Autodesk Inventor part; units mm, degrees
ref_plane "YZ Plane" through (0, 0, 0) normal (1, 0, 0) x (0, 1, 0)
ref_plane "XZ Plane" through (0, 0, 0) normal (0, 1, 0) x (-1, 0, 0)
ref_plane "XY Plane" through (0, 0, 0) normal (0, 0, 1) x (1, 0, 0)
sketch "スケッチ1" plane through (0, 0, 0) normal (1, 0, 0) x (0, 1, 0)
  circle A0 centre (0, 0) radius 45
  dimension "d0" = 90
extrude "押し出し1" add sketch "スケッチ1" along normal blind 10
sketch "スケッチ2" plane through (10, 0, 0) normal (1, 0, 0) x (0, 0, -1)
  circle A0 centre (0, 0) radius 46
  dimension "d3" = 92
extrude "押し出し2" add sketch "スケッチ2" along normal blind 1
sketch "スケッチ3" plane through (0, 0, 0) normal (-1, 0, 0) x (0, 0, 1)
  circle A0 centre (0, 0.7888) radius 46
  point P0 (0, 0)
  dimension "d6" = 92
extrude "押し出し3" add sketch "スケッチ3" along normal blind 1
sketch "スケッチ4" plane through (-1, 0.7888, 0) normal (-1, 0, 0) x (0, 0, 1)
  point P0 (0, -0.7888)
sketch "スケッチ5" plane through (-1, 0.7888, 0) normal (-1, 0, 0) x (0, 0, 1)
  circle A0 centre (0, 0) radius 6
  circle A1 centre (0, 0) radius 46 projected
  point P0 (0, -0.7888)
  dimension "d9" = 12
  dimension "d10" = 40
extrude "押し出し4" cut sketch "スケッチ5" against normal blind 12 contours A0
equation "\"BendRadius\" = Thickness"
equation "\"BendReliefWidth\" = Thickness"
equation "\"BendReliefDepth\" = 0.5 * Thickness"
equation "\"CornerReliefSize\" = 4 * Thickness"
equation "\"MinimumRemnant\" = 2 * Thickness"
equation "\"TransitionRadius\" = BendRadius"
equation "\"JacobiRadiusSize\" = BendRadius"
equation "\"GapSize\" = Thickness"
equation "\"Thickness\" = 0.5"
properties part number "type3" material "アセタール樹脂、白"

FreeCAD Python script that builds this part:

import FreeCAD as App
import Part
import Sketcher

doc = App.newDocument("Part")
body = doc.addObject("PartDesign::Body", "Body")

# Sketch on YZ plane
sketch1 = body.newObject("Sketcher::SketchObject", "Sketch")
sketch1.AttachmentSupport = (doc.getObject("YZ_Plane"), [""])
sketch1.MapMode = "FlatFace"
sketch1.addGeometry(Part.Circle(App.Vector(0, 0, 0), App.Vector(0, 0, 1), 45), False)
sketch1.addConstraint([
    Sketcher.Constraint("Coincident", 0, 3, -1, 1),
    Sketcher.Constraint("Diameter", 0, 90.0),
])
pad1 = body.newObject("PartDesign::Pad", "Pad")
pad1.Profile = sketch1
pad1.Length = 10

# Sketch on YZ plane
sketch2 = body.newObject("Sketcher::SketchObject", "Sketch001")
sketch2.AttachmentSupport = (doc.getObject("YZ_Plane"), [""])
sketch2.MapMode = "FlatFace"
sketch2.AttachmentOffset = App.Placement(App.Vector(0, 0, 10), App.Rotation())
sketch2.addGeometry(Part.Circle(App.Vector(0, 0, 0), App.Vector(0, 0, 1), 46), False)
sketch2.addConstraint([
    Sketcher.Constraint("Coincident", 0, 3, -1, 1),
    Sketcher.Constraint("Diameter", 0, 92.0),
])
pad2 = body.newObject("PartDesign::Pad", "Pad001")
pad2.Profile = sketch2
pad2.Length = 1

# Sketch on YZ plane
sketch3 = body.newObject("Sketcher::SketchObject", "Sketch002")
sketch3.AttachmentSupport = (doc.getObject("YZ_Plane"), [""])
sketch3.MapMode = "FlatFace"
sketch3.addGeometry(Part.Circle(App.Vector(1, 0, 0), App.Vector(0, 0, 1), 46), False)
sketch3.addConstraint([
    Sketcher.Constraint("PointOnObject", 0, 3, -1),
    Sketcher.Constraint("Diameter", 0, 92.0),
    Sketcher.Constraint("DistanceX", -1, 1, 0, 3, 0.7888),
])
pad3 = body.newObject("PartDesign::Pad", "Pad002")
pad3.Profile = sketch3
pad3.Length = 1
pad3.Reversed = True

# Sketch on YZ plane
sketch4 = body.newObject("Sketcher::SketchObject", "Sketch003")
sketch4.AttachmentSupport = (doc.getObject("YZ_Plane"), [""])
sketch4.MapMode = "FlatFace"
sketch4.AttachmentOffset = App.Placement(App.Vector(0, 0, -1), App.Rotation())
sketch4.addGeometry(Part.Circle(App.Vector(1, 0, 0), App.Vector(0, 0, 1), 6), False)
sketch4.addConstraint([
    Sketcher.Constraint("PointOnObject", 0, 3, -1),
    Sketcher.Constraint("Diameter", 0, 12.0),
    Sketcher.Constraint("DistanceX", -1, 1, 0, 3, 0.7888),
])
pocket1 = body.newObject("PartDesign::Pocket", "Pocket")
pocket1.Profile = sketch4
pocket1.Length = 12
pocket1.Reversed = True

doc.recompute()
